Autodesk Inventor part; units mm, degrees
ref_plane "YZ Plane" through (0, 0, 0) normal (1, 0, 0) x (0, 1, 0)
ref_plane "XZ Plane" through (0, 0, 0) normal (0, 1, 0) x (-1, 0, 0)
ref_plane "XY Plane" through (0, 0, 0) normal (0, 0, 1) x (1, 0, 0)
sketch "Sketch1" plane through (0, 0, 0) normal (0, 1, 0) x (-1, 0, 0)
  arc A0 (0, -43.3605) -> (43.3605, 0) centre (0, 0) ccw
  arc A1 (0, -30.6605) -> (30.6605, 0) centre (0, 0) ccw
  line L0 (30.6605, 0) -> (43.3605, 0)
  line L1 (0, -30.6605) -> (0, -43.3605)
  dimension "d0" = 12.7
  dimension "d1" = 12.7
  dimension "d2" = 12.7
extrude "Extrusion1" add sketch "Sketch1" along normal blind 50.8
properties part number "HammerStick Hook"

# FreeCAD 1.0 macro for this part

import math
import FreeCAD as App
import Part
import Sketcher
from FreeCAD import Vector
Q = App.Units.Quantity

doc = App.newDocument("Part")
body = doc.addObject("PartDesign::Body", "Body")

sketch1 = body.newObject("Sketcher::SketchObject", "Sketch")
sketch1.AttachmentSupport = (doc.getObject("XZ_Plane"), [""])
sketch1.MapMode = "FlatFace"
sketch1.addGeometry([
    Part.LineSegment(Vector(0, -31, 0), Vector(0, -43, 0)),
    Part.ArcOfCircle(Part.Circle(Vector(0, 0, 0), Vector(0, 0, 1), 43), math.radians(180), math.radians(270)),
    Part.LineSegment(Vector(-43, 0, 0), Vector(-31, 0, 0)),
    Part.ArcOfCircle(Part.Circle(Vector(0, 0, 0), Vector(0, 0, 1), 31), math.radians(180), math.radians(270)),
], False)
sketch1.addConstraint([
    Sketcher.Constraint("Coincident", 0, 2, 1, 2),
    Sketcher.Constraint("Coincident", 1, 1, 2, 1),
    Sketcher.Constraint("Coincident", 2, 2, 3, 1),
    Sketcher.Constraint("Coincident", 3, 2, 0, 1),
    Sketcher.Constraint("Vertical", 0),
    Sketcher.Constraint("Horizontal", 2),
    Sketcher.Constraint("Coincident", 1, 3, -1, 1),
    Sketcher.Constraint("Coincident", 3, 3, -1, 1),
    Sketcher.Constraint("PointOnObject", 0, 2, -2),
    Sketcher.Constraint("PointOnObject", 1, 1, -1),
    Sketcher.Constraint("DistanceX", 2, 1, 2, 2, Q("0.5 in")),
    Sketcher.Constraint("Radius", 1, Q("1.7071 in")),
])
pad1 = body.newObject("PartDesign::Pad", "Pad")
pad1.Profile = sketch1
pad1.Length = Q("2 in")
pad1.Reversed = True

doc.recompute()
